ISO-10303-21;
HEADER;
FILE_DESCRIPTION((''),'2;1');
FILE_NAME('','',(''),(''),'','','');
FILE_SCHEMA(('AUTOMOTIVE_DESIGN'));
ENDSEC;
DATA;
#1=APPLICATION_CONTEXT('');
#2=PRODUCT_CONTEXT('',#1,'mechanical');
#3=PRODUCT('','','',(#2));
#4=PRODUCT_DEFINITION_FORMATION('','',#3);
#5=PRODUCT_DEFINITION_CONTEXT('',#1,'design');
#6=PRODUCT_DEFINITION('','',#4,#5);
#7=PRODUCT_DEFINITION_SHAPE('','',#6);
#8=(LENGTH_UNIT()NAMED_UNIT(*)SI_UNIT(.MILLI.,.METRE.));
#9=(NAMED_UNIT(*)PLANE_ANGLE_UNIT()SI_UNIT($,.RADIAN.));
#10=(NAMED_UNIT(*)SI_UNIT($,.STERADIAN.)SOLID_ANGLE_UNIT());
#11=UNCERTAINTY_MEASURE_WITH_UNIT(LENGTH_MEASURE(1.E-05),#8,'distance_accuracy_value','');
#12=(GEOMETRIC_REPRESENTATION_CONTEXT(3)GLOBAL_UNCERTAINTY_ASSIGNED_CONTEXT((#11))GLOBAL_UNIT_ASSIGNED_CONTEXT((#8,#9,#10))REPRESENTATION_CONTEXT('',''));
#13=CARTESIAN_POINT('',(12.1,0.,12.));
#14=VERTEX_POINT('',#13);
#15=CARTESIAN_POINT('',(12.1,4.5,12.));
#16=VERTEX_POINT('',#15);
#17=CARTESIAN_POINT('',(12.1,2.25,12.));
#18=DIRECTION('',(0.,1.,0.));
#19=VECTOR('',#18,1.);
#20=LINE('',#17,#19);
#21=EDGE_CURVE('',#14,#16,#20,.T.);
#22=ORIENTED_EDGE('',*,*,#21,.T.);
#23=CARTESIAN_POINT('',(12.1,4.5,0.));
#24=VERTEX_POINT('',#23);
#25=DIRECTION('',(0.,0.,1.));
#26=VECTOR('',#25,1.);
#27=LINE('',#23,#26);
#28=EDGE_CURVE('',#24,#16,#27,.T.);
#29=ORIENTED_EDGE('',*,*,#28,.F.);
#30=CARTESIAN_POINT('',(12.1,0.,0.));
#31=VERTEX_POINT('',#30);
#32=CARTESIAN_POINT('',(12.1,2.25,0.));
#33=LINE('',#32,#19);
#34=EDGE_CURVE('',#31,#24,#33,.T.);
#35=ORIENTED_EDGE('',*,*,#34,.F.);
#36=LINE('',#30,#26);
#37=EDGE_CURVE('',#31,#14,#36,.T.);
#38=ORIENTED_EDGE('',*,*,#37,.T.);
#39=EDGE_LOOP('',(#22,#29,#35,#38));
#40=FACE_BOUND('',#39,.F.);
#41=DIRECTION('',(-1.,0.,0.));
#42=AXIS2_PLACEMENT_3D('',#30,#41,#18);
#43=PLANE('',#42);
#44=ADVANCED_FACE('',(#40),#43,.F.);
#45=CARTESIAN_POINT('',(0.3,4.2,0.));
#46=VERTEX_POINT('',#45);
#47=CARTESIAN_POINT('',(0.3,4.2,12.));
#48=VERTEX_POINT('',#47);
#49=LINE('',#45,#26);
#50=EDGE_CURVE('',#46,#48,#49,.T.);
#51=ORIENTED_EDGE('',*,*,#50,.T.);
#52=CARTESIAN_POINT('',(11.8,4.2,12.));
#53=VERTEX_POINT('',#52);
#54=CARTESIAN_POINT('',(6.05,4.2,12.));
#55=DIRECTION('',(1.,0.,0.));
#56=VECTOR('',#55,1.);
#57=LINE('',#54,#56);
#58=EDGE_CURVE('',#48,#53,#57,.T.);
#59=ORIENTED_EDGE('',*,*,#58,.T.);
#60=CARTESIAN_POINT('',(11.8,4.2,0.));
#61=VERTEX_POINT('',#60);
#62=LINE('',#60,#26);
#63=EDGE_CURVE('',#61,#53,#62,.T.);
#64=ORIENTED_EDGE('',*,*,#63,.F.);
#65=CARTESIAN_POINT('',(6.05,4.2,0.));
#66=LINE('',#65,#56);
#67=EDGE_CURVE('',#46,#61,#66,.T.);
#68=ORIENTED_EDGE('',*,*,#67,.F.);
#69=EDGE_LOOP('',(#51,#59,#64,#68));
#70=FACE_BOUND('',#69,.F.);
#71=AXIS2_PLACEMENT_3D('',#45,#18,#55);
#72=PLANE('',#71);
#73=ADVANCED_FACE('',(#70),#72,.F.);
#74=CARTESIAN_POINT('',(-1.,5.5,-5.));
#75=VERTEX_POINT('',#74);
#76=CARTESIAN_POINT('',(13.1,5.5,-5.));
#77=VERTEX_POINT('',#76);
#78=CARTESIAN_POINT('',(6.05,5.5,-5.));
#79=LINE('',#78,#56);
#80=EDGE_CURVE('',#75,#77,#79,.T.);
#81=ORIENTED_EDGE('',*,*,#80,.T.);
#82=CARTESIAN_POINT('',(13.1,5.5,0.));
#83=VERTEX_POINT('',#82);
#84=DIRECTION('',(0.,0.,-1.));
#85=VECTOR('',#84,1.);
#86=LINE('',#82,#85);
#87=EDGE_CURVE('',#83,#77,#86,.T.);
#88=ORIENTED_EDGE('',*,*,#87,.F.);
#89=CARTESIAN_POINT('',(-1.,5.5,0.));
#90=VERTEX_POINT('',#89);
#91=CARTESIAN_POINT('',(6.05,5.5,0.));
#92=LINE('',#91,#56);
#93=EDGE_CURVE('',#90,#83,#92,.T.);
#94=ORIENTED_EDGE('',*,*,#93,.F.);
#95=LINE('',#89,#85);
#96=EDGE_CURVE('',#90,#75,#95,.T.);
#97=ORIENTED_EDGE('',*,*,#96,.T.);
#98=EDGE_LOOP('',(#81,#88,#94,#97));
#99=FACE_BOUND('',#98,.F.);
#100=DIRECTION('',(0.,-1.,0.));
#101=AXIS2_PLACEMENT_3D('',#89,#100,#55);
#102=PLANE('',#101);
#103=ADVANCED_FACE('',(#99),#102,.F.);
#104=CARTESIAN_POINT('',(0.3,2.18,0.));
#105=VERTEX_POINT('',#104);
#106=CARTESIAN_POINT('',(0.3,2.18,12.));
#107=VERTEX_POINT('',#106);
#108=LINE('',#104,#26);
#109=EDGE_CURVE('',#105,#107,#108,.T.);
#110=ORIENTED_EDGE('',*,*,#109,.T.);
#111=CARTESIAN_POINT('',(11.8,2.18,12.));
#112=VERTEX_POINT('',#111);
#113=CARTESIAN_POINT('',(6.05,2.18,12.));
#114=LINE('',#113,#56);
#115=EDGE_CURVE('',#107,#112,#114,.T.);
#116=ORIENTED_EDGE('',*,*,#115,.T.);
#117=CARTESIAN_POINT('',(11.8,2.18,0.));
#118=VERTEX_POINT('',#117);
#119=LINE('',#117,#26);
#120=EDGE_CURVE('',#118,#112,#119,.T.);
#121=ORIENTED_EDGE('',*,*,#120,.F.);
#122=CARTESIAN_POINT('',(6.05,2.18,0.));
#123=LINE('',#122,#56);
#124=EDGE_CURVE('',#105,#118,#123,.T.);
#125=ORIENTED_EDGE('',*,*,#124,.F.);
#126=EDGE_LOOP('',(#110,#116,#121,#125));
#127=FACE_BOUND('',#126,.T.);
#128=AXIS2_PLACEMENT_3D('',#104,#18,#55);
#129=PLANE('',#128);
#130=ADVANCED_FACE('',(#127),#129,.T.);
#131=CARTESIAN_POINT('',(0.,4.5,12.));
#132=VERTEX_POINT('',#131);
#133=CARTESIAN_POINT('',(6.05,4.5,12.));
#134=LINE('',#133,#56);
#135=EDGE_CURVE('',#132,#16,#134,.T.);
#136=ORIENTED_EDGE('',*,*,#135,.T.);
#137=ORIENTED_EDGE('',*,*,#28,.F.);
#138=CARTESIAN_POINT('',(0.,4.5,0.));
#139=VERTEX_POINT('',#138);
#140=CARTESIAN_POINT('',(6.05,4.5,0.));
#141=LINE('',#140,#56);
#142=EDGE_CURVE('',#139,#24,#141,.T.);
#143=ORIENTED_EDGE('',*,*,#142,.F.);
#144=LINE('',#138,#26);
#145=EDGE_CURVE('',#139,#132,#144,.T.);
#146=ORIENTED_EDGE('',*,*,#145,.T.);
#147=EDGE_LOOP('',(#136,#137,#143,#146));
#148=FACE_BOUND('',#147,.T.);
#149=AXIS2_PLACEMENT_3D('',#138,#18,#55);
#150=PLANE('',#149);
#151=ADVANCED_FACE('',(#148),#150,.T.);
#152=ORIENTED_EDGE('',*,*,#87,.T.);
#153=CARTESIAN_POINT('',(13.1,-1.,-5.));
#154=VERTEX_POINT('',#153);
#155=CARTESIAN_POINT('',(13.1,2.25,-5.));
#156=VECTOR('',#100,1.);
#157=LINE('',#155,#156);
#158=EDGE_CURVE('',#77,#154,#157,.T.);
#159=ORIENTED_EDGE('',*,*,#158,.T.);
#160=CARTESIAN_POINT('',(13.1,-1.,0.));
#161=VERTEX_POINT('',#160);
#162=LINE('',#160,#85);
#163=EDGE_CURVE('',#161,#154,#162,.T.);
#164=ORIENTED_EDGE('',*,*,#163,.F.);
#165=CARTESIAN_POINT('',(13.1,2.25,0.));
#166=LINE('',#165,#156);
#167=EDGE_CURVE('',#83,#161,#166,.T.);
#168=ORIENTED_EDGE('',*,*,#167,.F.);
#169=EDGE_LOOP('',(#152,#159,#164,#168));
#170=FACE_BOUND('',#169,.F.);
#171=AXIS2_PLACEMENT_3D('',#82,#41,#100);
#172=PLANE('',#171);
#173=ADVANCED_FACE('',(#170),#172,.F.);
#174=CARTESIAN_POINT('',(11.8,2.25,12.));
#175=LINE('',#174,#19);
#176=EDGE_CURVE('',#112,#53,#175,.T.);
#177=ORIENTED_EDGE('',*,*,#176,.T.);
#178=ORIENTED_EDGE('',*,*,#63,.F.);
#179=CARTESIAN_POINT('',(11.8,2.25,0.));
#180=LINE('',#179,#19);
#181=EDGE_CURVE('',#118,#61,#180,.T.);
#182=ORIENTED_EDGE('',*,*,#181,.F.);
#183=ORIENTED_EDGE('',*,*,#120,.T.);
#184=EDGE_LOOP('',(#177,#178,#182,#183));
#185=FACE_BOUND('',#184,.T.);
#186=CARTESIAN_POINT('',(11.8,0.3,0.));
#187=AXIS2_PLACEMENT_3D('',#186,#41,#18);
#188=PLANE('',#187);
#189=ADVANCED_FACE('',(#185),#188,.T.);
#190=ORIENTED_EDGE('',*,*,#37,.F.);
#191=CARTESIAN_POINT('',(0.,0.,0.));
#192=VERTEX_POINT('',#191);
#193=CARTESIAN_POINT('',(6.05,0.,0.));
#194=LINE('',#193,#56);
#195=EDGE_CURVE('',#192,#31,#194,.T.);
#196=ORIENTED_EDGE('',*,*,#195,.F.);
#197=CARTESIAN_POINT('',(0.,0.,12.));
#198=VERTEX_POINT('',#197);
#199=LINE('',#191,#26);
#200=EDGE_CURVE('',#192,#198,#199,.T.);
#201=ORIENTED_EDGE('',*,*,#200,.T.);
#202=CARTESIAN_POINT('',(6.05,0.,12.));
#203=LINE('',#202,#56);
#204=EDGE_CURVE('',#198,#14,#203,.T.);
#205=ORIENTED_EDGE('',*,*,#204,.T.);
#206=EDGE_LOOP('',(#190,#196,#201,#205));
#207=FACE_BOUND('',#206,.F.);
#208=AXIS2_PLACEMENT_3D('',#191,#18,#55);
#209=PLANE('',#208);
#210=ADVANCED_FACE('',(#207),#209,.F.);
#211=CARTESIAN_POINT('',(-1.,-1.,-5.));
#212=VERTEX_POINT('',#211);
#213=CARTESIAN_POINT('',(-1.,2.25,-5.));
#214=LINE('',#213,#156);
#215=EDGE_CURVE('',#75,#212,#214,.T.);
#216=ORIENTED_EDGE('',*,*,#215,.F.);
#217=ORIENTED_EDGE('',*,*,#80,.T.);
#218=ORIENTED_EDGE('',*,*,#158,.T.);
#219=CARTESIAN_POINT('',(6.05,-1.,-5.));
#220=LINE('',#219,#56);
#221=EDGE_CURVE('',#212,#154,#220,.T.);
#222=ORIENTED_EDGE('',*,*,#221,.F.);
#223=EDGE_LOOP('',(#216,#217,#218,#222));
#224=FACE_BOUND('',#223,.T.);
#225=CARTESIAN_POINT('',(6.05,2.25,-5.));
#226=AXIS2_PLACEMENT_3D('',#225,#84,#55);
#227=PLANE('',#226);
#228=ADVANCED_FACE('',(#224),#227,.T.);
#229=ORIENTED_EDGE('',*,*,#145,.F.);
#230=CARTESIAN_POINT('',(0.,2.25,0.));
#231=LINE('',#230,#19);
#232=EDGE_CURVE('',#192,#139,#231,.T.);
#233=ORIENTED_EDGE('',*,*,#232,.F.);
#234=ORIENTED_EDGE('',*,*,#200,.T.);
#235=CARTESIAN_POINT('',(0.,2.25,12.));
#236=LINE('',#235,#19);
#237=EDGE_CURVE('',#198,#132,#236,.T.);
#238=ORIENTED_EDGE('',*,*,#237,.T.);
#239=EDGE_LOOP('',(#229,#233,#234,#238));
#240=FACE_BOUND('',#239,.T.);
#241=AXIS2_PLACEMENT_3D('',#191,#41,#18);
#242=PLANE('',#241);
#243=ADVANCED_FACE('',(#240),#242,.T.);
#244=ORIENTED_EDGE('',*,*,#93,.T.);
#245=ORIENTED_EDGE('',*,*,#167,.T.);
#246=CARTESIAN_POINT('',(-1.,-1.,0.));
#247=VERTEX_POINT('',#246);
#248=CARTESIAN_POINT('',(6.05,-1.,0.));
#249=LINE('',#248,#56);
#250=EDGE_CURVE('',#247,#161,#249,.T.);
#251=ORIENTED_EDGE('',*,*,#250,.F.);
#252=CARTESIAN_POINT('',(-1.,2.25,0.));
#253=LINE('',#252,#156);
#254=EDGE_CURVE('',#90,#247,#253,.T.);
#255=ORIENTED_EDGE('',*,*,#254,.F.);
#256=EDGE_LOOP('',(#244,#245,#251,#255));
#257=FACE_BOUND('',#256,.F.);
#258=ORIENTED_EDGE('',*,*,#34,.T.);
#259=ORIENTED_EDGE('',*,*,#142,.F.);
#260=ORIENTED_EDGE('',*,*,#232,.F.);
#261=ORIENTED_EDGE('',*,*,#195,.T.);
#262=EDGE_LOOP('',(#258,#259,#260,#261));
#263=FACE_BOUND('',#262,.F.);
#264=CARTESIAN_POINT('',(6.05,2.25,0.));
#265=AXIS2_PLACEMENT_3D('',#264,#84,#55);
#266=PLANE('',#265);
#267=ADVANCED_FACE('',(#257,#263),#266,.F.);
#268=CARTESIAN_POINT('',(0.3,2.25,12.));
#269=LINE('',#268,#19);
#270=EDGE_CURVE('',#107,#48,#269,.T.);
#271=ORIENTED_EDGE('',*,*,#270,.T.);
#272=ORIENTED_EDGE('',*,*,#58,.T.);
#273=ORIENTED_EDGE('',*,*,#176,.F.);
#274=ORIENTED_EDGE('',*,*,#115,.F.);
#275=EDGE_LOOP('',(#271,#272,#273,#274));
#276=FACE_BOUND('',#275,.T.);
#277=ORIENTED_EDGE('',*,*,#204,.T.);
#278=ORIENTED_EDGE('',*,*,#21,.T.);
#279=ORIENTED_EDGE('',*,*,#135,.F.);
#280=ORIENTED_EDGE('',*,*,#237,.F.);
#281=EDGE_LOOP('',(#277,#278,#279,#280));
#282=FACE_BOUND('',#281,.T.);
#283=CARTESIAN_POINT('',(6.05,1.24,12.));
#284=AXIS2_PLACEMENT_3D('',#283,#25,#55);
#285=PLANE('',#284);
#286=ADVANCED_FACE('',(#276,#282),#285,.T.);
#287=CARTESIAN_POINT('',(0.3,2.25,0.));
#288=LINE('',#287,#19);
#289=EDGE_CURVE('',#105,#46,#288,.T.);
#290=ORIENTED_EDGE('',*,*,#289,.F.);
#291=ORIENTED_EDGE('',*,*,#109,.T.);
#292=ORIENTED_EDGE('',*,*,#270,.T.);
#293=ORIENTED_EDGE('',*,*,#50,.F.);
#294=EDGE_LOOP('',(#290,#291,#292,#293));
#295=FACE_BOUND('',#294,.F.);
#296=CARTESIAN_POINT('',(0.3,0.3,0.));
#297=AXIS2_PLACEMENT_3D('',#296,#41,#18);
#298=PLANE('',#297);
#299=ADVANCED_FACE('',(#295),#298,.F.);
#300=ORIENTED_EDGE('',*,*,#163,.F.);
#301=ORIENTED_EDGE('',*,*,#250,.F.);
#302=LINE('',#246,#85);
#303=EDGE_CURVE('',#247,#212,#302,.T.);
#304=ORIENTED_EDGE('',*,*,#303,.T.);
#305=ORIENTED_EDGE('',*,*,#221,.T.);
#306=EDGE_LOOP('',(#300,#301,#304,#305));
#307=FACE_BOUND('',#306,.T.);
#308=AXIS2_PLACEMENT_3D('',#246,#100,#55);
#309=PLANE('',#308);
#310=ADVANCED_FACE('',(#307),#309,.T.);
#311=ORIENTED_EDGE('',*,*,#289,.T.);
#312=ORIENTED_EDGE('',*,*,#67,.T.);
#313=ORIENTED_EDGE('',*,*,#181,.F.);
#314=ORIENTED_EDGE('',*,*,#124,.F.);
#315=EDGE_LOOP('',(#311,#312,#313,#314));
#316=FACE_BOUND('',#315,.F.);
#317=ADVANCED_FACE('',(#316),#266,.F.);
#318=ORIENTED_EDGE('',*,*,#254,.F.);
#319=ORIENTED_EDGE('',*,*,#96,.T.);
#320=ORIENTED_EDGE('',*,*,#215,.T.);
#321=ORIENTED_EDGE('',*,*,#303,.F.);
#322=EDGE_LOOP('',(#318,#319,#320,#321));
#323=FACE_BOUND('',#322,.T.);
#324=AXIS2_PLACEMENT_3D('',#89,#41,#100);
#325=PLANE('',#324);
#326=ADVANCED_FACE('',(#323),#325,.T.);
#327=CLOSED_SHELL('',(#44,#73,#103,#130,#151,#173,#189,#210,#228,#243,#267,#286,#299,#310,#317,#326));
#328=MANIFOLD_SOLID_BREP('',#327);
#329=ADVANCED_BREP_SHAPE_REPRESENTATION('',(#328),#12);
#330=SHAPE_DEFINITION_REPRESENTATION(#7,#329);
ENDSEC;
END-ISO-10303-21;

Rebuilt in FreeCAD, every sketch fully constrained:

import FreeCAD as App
import Part
import Sketcher
Q = App.Units.Quantity


def add_polygon(sketch, points):
    """Adds a closed chain of lines whose ends are joined by coincident constraints."""
    first, n = sketch.GeometryCount, len(points)
    for a, b in zip(points, points[1:] + points[:1]):
        sketch.addGeometry(Part.LineSegment(App.Vector(*a, 0), App.Vector(*b, 0)), False)
    for i in range(n):
        sketch.addConstraint(Sketcher.Constraint("Coincident", first + i, 2, first + (i + 1) % n, 1))

doc = App.newDocument("Part")
body = doc.addObject("PartDesign::Body", "Body")

sketch1 = body.newObject("Sketcher::SketchObject", "Sketch")
sketch1.AttachmentSupport = (doc.getObject("XY_Plane"), [""])
sketch1.MapMode = "FlatFace"
add_polygon(sketch1, [(0, 4.5), (0, 0), (12.1, 0), (12.1, 4.5)])
add_polygon(sketch1, [(11.8, 0.3), (0.3, 0.3), (0.3, 4.2), (11.8, 4.2)])
sketch1.addConstraint([
    Sketcher.Constraint("Vertical", 0),
    Sketcher.Constraint("Horizontal", 1),
    Sketcher.Constraint("Vertical", 2),
    Sketcher.Constraint("Horizontal", 3),
    Sketcher.Constraint("Horizontal", 4),
    Sketcher.Constraint("Vertical", 5),
    Sketcher.Constraint("Horizontal", 6),
    Sketcher.Constraint("Vertical", 7),
    Sketcher.Constraint("Coincident", 0, 2, -1, 1),
    Sketcher.Constraint("DistanceX", 1, 1, 1, 2, Q("12.1 mm")),
    Sketcher.Constraint("DistanceX", 4, 2, 4, 1, Q("11.5 mm")),
    Sketcher.Constraint("DistanceY", 0, 2, 0, 1, Q("4.5 mm")),
    Sketcher.Constraint("DistanceY", 5, 1, 5, 2, Q("3.9 mm")),
    Sketcher.Constraint("DistanceX", -1, 1, 4, 2, Q("0.3 mm")),
    Sketcher.Constraint("DistanceY", -1, 1, 4, 2, Q("0.3 mm")),
])
pad1 = body.newObject("PartDesign::Pad", "Pad")
pad1.Profile = sketch1
pad1.Length = 12

sketch2 = body.newObject("Sketcher::SketchObject", "Sketch001")
sketch2.AttachmentSupport = (doc.getObject("XY_Plane"), [""])
sketch2.MapMode = "FlatFace"
add_polygon(sketch2, [(0.3, 2.18), (0.3, 0.3), (11.8, 0.3), (11.8, 2.18)])
sketch2.addConstraint([
    Sketcher.Constraint("Vertical", 0),
    Sketcher.Constraint("Horizontal", 1),
    Sketcher.Constraint("Vertical", 2),
    Sketcher.Constraint("Horizontal", 3),
    Sketcher.Constraint("DistanceX", 1, 1, 1, 2, Q("11.5 mm")),
    Sketcher.Constraint("DistanceY", 0, 2, 0, 1, Q("1.88 mm")),
    Sketcher.Constraint("DistanceX", -1, 1, 0, 2, Q("0.3 mm")),
    Sketcher.Constraint("DistanceY", -1, 1, 0, 2, Q("0.3 mm")),
])
pad2 = body.newObject("PartDesign::Pad", "Pad001")
pad2.Profile = sketch2
pad2.Length = 12

sketch3 = body.newObject("Sketcher::SketchObject", "Sketch002")
sketch3.AttachmentSupport = (doc.getObject("XY_Plane"), [""])
sketch3.MapMode = "FlatFace"
add_polygon(sketch3, [(-1, -1), (-1, 5.5), (13.1, 5.5), (13.1, -1)])
sketch3.addConstraint([
    Sketcher.Constraint("Vertical", 0),
    Sketcher.Constraint("Horizontal", 1),
    Sketcher.Constraint("Vertical", 2),
    Sketcher.Constraint("Horizontal", 3),
    Sketcher.Constraint("DistanceX", 1, 1, 1, 2, Q("14.1 mm")),
    Sketcher.Constraint("DistanceY", 0, 1, 0, 2, Q("6.5 mm")),
    Sketcher.Constraint("DistanceX", 0, 2, -1, 1, Q("1 mm")),
    Sketcher.Constraint("DistanceY", 2, 2, -1, 1, Q("1 mm")),
])
pad3 = body.newObject("PartDesign::Pad", "Pad002")
pad3.Profile = sketch3
pad3.Length = 5
pad3.Reversed = True
body2 = doc.addObject("PartDesign::Body", "Body001")

sketch4 = body2.newObject("Sketcher::SketchObject", "Sketch003")
sketch4.AttachmentSupport = (doc.getObject("XY_Plane001"), [""])
sketch4.MapMode = "FlatFace"
add_polygon(sketch4, [(-1.03, -1.03), (-1.03, 5.53), (13.13, 5.53), (13.13, -1.03)])
add_polygon(sketch4, [(12.1, 4.5), (0, 4.5), (0, 0), (12.1, 0)])
sketch4.addConstraint([
    Sketcher.Constraint("Vertical", 0),
    Sketcher.Constraint("Horizontal", 1),
    Sketcher.Constraint("Vertical", 2),
    Sketcher.Constraint("Horizontal", 3),
    Sketcher.Constraint("Horizontal", 4),
    Sketcher.Constraint("Vertical", 5),
    Sketcher.Constraint("Horizontal", 6),
    Sketcher.Constraint("Vertical", 7),
    Sketcher.Constraint("Coincident", 5, 2, -1, 1),
    Sketcher.Constraint("DistanceX", 4, 2, 4, 1, Q("12.1 mm")),
    Sketcher.Constraint("DistanceY", 5, 2, 5, 1, Q("4.5 mm")),
    Sketcher.Constraint("DistanceX", 1, 1, 1, 2, Q("14.16 mm")),
    Sketcher.Constraint("DistanceY", 0, 1, 0, 2, Q("6.56 mm")),
    Sketcher.Constraint("DistanceX", 0, 2, -1, 1, Q("1.03 mm")),
    Sketcher.Constraint("DistanceY", -1, 1, 0, 2, Q("5.53 mm")),
])
pad4 = body2.newObject("PartDesign::Pad", "Pad003")
pad4.Profile = sketch4
pad4.Length = 5
pad4.Reversed = True
body2.Visibility = False

doc.recompute()
